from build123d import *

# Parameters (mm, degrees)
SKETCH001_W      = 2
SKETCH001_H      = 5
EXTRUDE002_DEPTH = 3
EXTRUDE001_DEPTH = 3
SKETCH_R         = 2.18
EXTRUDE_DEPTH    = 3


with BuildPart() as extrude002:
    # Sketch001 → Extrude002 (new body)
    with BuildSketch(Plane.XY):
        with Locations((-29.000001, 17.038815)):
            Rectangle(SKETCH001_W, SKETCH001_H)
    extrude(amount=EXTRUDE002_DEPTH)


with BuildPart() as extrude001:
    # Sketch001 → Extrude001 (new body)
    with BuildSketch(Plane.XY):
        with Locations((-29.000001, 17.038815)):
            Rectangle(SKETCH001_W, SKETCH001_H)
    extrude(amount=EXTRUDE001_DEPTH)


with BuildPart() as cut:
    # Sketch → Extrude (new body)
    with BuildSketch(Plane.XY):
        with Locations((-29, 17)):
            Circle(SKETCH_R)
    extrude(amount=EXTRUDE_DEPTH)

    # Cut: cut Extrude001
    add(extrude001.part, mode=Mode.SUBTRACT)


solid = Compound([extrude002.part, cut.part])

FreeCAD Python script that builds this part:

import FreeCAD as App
import Part
import Sketcher
from FreeCAD import Vector
Q = App.Units.Quantity

doc = App.newDocument("Part")
body = doc.addObject("PartDesign::Body", "Body")

sketch1 = body.newObject("Sketcher::SketchObject", "Sketch")
sketch1.AttachmentSupport = (doc.getObject("XY_Plane"), [""])
sketch1.MapMode = "FlatFace"
sketch1.addGeometry([
    Part.LineSegment(Vector(-30, 19.5, 0), Vector(-30, 14.5, 0)),
    Part.LineSegment(Vector(-30, 14.5, 0), Vector(-28, 14.5, 0)),
    Part.LineSegment(Vector(-28, 14.5, 0), Vector(-28, 19.5, 0)),
    Part.LineSegment(Vector(-28, 19.5, 0), Vector(-30, 19.5, 0)),
], False)
sketch1.addConstraint([
    Sketcher.Constraint("Coincident", 0, 2, 1, 1),
    Sketcher.Constraint("Coincident", 1, 2, 2, 1),
    Sketcher.Constraint("Coincident", 2, 2, 3, 1),
    Sketcher.Constraint("Coincident", 3, 2, 0, 1),
    Sketcher.Constraint("Vertical", 0),
    Sketcher.Constraint("Horizontal", 1),
    Sketcher.Constraint("Vertical", 2),
    Sketcher.Constraint("Horizontal", 3),
    Sketcher.Constraint("DistanceX", 1, 1, 1, 2, Q("2 mm")),
    Sketcher.Constraint("DistanceY", 0, 2, 0, 1, Q("5 mm")),
    Sketcher.Constraint("DistanceX", 0, 2, -1, 1, Q("30.000001 mm")),
    Sketcher.Constraint("DistanceY", -1, 1, 0, 2, Q("14.538815 mm")),
])
pad1 = body.newObject("PartDesign::Pad", "Pad")
pad1.Profile = sketch1
pad1.Length = 3
body2 = doc.addObject("PartDesign::Body", "Body001")

sketch2 = body2.newObject("Sketcher::SketchObject", "Sketch001")
sketch2.AttachmentSupport = (doc.getObject("XY_Plane001"), [""])
sketch2.MapMode = "FlatFace"
sketch2.addGeometry([
    Part.LineSegment(Vector(-30, 19.5, 0), Vector(-30, 14.5, 0)),
    Part.LineSegment(Vector(-30, 14.5, 0), Vector(-28, 14.5, 0)),
    Part.LineSegment(Vector(-28, 14.5, 0), Vector(-28, 19.5, 0)),
    Part.LineSegment(Vector(-28, 19.5, 0), Vector(-30, 19.5, 0)),
], False)
sketch2.addConstraint([
    Sketcher.Constraint("Coincident", 0, 2, 1, 1),
    Sketcher.Constraint("Coincident", 1, 2, 2, 1),
    Sketcher.Constraint("Coincident", 2, 2, 3, 1),
    Sketcher.Constraint("Coincident", 3, 2, 0, 1),
    Sketcher.Constraint("Vertical", 0),
    Sketcher.Constraint("Horizontal", 1),
    Sketcher.Constraint("Vertical", 2),
    Sketcher.Constraint("Horizontal", 3),
    Sketcher.Constraint("DistanceX", 1, 1, 1, 2, Q("2 mm")),
    Sketcher.Constraint("DistanceY", 0, 2, 0, 1, Q("5 mm")),
    Sketcher.Constraint("DistanceX", 0, 2, -1, 1, Q("30.000001 mm")),
    Sketcher.Constraint("DistanceY", -1, 1, 0, 2, Q("14.538815 mm")),
])
pad2 = body2.newObject("PartDesign::Pad", "Pad001")
pad2.Profile = sketch2
pad2.Length = 3
body3 = doc.addObject("PartDesign::Body", "Body002")
body3.AllowCompound = True

sketch3 = body3.newObject("Sketcher::SketchObject", "Sketch002")
sketch3.AttachmentSupport = (doc.getObject("XY_Plane002"), [""])
sketch3.MapMode = "FlatFace"
sketch3.addGeometry(Part.Circle(Vector(-29, 17, 0), Vector(0, 0, 1), 2.2), False)
sketch3.addConstraint([
    Sketcher.Constraint("Diameter", 0, Q("4.36 mm")),
    Sketcher.Constraint("DistanceX", 0, 3, -1, 1, Q("29 mm")),
    Sketcher.Constraint("DistanceY", -1, 1, 0, 3, Q("17 mm")),
])
pad3 = body3.newObject("PartDesign::Pad", "Pad002")
pad3.Profile = sketch3
pad3.Length = 3
doc.recompute()

boolean = body3.newObject("PartDesign::Boolean", "Boolean")
boolean.Type = "Cut"
boolean.addObjects([body2])

doc.recompute()
